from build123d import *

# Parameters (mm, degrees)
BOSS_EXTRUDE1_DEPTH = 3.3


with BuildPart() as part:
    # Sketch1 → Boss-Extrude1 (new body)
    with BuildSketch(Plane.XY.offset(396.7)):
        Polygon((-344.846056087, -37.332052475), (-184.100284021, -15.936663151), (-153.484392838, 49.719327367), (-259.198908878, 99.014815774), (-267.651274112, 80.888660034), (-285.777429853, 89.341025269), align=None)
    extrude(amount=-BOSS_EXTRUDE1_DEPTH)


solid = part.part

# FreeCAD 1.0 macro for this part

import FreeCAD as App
import Part
import Sketcher

V = App.Vector
Q = App.Units.Quantity


def add_polygon(sketch, points):
    """Adds a closed chain of lines whose ends are joined by coincident constraints."""
    first, n = sketch.GeometryCount, len(points)
    for a, b in zip(points, points[1:] + points[:1]):
        sketch.addGeometry(Part.LineSegment(App.Vector(*a, 0), App.Vector(*b, 0)), False)
    for i in range(n):
        sketch.addConstraint(Sketcher.Constraint("Coincident", first + i, 2, first + (i + 1) % n, 1))

doc = App.newDocument("Part")
body = doc.addObject("PartDesign::Body", "Body")

sketch1 = body.newObject("Sketcher::SketchObject", "Sketch")
sketch1.AttachmentSupport = (doc.getObject("XY_Plane"), [""])
sketch1.MapMode = "FlatFace"
sketch1.AttachmentOffset = App.Placement(V(0, 0, 396.7), App.Rotation())
add_polygon(sketch1, [(-345, -37), (-184, -16), (-153, 50), (-259, 99), (-268, 81), (-286, 89)])
sketch1.addConstraint([
    Sketcher.Constraint("Perpendicular", 1, 2),
    Sketcher.Constraint("Perpendicular", 2, 3),
    Sketcher.Constraint("Perpendicular", 3, 4),
    Sketcher.Constraint("Perpendicular", 4, 5),
    Sketcher.Constraint("Equal", 3, 4),
    Sketcher.Constraint("Angle", 1, Q("65 deg")),
    Sketcher.Constraint("Distance", 3, 20.0),
    Sketcher.Constraint("Distance", 1, 72.44337),
    Sketcher.Constraint("DistanceX", 2, 2, -1, 1, 259.198909),
    Sketcher.Constraint("DistanceY", -1, 1, 3, 2, 80.88866),
    Sketcher.Constraint("DistanceY", 1, 2, 2, 2, 49.295488),
    Sketcher.Constraint("DistanceX", 5, 2, 3, 2, 77.194782),
])
pad1 = body.newObject("PartDesign::Pad", "Pad")
pad1.Profile = sketch1
pad1.Length = 3.3
pad1.Reversed = True

doc.recompute()
